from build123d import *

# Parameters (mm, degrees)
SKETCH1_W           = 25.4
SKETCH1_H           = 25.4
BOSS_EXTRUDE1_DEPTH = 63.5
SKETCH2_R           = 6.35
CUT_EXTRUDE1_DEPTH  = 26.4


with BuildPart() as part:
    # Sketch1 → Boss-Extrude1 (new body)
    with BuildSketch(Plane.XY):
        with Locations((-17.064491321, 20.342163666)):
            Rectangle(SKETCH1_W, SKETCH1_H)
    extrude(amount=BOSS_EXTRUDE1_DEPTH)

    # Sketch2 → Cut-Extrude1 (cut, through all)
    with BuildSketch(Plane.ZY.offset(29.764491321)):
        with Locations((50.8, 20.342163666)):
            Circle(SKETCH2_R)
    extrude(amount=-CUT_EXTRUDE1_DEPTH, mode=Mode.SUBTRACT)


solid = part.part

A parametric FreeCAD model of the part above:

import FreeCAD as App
import Part
import Sketcher
from FreeCAD import Vector
Q = App.Units.Quantity


def add_polygon(sketch, points):
    """Adds a closed chain of lines whose ends are joined by coincident constraints."""
    first, n = sketch.GeometryCount, len(points)
    for a, b in zip(points, points[1:] + points[:1]):
        sketch.addGeometry(Part.LineSegment(App.Vector(*a, 0), App.Vector(*b, 0)), False)
    for i in range(n):
        sketch.addConstraint(Sketcher.Constraint("Coincident", first + i, 2, first + (i + 1) % n, 1))

doc = App.newDocument("Part")
body = doc.addObject("PartDesign::Body", "Body")

# Sketch on XY plane
sketch1 = doc.addObject("Sketcher::SketchObject", "Sketch")
body.addObject(sketch1)
sketch1.AttachmentSupport = (doc.XY_Plane, [""])
sketch1.MapMode = "FlatFace"
add_polygon(sketch1, [(-29.764491, 33.042164), (-29.764491, 7.642164), (-4.364491, 7.642164), (-4.364491, 33.042164)])  # lines 0-3
sketch1.addConstraint(Sketcher.Constraint("Vertical", 0))
sketch1.addConstraint(Sketcher.Constraint("Horizontal", 1))
sketch1.addConstraint(Sketcher.Constraint("Vertical", 2))
sketch1.addConstraint(Sketcher.Constraint("Horizontal", 3))
sketch1.addConstraint(Sketcher.Constraint("Equal", 3, 0))
sketch1.addConstraint(Sketcher.Constraint("DistanceX", 1, 1, 1, 2, Q("1 in")))
sketch1.addConstraint(Sketcher.Constraint("DistanceX", 0, 2, -1, 1, Q("29.764491 mm")))
sketch1.addConstraint(Sketcher.Constraint("DistanceY", -1, 1, 0, 2, Q("7.642164 mm")))
pad1 = doc.addObject("PartDesign::Pad", "Pad")
body.addObject(pad1)
pad1.Profile = sketch1
pad1.Length = Q("2.5 in")

# Sketch on YZ plane
sketch2 = doc.addObject("Sketcher::SketchObject", "Sketch001")
body.addObject(sketch2)
sketch2.AttachmentSupport = (doc.YZ_Plane, [""])
sketch2.MapMode = "FlatFace"
sketch2.AttachmentOffset = App.Placement(Vector(0, 0, -29.764491), App.Rotation())
sketch2.addGeometry(Part.Circle(Vector(20.342164, 50.8, 0), Vector(0, 0, 1), 6.35), False)
sketch2.addConstraint(Sketcher.Constraint("Diameter", 0, Q("0.5 in")))
sketch2.addConstraint(Sketcher.Constraint("DistanceY", -1, 1, 0, 3, Q("2 in")))
sketch2.addConstraint(Sketcher.Constraint("DistanceX", -1, 1, 0, 3, Q("20.342164 mm")))
pocket1 = doc.addObject("PartDesign::Pocket", "Pocket")
body.addObject(pocket1)
pocket1.Profile = sketch2
pocket1.Type = "ThroughAll"
pocket1.Reversed = True

doc.recompute()
